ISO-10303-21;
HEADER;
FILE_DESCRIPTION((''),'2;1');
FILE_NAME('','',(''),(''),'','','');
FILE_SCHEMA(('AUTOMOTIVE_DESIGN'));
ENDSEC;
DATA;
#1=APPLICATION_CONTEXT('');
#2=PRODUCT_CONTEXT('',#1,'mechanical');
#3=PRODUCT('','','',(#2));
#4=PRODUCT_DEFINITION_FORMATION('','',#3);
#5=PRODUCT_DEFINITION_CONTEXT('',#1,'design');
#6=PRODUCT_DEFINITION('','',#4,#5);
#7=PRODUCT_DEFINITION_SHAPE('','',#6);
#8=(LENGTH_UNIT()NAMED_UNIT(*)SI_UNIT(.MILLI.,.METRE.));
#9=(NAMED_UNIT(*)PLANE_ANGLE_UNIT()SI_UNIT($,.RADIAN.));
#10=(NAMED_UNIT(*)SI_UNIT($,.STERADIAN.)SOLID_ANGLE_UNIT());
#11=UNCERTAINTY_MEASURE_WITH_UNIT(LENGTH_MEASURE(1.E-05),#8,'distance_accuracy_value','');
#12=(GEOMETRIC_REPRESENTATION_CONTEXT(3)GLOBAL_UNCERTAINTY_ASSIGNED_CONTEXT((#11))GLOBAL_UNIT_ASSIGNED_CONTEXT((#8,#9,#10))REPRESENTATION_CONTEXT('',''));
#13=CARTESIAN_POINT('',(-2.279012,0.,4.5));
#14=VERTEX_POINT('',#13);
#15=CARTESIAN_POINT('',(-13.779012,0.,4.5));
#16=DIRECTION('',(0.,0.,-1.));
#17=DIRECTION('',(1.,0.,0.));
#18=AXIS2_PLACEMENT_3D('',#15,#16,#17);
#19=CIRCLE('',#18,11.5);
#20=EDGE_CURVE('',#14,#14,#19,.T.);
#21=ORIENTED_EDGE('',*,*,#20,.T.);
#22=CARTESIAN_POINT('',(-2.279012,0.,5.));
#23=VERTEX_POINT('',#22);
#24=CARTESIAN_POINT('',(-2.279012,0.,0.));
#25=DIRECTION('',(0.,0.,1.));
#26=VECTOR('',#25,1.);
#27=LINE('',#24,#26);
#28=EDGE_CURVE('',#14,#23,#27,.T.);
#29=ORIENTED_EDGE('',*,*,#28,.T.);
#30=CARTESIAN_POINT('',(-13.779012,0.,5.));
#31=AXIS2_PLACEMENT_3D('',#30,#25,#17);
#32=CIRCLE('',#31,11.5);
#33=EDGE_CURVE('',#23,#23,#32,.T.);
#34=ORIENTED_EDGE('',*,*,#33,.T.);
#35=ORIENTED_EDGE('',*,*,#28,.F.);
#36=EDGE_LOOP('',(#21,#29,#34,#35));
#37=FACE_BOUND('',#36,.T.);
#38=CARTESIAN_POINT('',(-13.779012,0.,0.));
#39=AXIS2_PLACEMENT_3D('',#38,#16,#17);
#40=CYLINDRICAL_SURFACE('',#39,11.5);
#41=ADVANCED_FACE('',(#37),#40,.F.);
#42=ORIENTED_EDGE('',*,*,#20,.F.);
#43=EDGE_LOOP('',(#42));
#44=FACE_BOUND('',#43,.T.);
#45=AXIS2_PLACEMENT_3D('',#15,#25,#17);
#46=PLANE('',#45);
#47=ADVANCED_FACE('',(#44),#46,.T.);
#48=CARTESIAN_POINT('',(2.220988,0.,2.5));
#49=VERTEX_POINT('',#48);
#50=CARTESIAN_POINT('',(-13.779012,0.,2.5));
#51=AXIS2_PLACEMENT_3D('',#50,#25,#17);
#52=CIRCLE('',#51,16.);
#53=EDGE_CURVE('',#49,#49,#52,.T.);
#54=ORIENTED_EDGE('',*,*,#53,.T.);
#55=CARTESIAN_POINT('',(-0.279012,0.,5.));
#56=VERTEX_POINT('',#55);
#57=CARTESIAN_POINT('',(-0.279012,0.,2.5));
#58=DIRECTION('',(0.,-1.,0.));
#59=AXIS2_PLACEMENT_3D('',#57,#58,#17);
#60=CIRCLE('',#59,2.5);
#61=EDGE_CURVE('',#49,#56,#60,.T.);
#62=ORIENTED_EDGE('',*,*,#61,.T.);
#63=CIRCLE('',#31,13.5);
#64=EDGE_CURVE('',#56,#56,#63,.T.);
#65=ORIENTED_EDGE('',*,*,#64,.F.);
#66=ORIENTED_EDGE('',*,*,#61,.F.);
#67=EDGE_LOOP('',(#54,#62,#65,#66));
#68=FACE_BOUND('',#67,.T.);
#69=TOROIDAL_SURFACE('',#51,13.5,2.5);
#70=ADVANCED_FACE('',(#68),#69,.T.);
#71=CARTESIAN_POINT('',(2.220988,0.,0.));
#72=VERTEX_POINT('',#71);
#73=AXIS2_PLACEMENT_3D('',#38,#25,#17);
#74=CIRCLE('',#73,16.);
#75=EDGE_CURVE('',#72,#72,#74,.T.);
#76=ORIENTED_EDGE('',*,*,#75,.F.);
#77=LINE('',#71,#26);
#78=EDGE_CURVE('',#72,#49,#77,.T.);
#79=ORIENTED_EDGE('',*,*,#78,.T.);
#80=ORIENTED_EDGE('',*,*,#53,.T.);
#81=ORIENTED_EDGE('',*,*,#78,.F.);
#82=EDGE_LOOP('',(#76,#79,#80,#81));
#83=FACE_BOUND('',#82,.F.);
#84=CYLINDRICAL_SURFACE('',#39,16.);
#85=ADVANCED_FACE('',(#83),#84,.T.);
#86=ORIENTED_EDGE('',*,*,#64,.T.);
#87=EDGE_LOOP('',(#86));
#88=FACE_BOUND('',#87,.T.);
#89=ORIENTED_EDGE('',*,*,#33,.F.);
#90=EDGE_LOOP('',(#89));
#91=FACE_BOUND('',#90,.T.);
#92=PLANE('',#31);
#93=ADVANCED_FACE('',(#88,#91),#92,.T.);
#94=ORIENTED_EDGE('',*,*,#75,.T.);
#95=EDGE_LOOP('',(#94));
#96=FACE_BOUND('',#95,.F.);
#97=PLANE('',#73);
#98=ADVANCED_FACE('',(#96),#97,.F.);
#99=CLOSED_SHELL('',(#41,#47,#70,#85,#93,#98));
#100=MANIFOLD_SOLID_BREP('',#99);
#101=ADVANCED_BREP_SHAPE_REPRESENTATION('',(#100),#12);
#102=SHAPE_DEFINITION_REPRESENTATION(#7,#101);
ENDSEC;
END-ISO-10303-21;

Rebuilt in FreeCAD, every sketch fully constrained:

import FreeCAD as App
import Part
import Sketcher
Q = App.Units.Quantity


def edges_at(feature, points):
    """Names of the edges that pass closest to the given points."""
    edges = feature.Shape.Edges
    near = lambda p: min(range(len(edges)), key=lambda i: edges[i].distToShape(Part.Vertex(*p))[0])
    return sorted({f"Edge{near(p) + 1}" for p in points})


def faces_at(feature, points):
    """Names of the faces that lie closest to the given points."""
    faces = feature.Shape.Faces
    near = lambda p: min(range(len(faces)), key=lambda i: faces[i].distToShape(Part.Vertex(*p))[0])
    return sorted({f"Face{near(p) + 1}" for p in points})

doc = App.newDocument("Part")
params = doc.addObject("Spreadsheet::Sheet", "Params")
for row, (alias, value) in enumerate([
    ("sketch1_diameter", "32 mm"),
    ("pad1_length", "5 mm"),
    ("thickness_wall", "4.5 mm"),
    ("fillet_radius", "2.5 mm"),
], start=1):
    params.set(f"A{row}", alias)
    params.set(f"B{row}", "=" + value)
    params.setAlias(f"B{row}", alias)

body = doc.addObject("PartDesign::Body", "Body")

# Sketch on XY plane
sketch1 = body.newObject("Sketcher::SketchObject", "Sketch")
sketch1.AttachmentSupport = (doc.getObject("XY_Plane"), [""])
sketch1.MapMode = "FlatFace"
sketch1.addGeometry(Part.Circle(App.Vector(-14, 0, 0), App.Vector(0, 0, 1), 16), False)
sketch1.addConstraint(Sketcher.Constraint("PointOnObject", 0, 3, -1))
sketch1.addConstraint(Sketcher.Constraint("Diameter", 0, Q("32 mm")))
sketch1.addConstraint(Sketcher.Constraint("DistanceX", 0, 3, -1, 1, Q("13.779012 mm")))
sketch1.setExpression("Constraints[1]", "Params.sketch1_diameter")
pad1 = body.newObject("PartDesign::Pad", "Pad")
pad1.Profile = sketch1
pad1.setExpression("Length", "Params.pad1_length")
doc.recompute()

thickness = body.newObject("PartDesign::Thickness", "Thickness")
thickness.Base = (pad1, faces_at(pad1, [(-13.779, 0, 5)]))
thickness.setExpression("Value", "Params.thickness_wall")
thickness.Reversed = True
thickness.Join = "Arc"
doc.recompute()

fillet = body.newObject("PartDesign::Fillet", "Fillet")
fillet.Base = (thickness, edges_at(thickness, [(-29.779, 0, 5)]))
fillet.setExpression("Radius", "Params.fillet_radius")

doc.recompute()
